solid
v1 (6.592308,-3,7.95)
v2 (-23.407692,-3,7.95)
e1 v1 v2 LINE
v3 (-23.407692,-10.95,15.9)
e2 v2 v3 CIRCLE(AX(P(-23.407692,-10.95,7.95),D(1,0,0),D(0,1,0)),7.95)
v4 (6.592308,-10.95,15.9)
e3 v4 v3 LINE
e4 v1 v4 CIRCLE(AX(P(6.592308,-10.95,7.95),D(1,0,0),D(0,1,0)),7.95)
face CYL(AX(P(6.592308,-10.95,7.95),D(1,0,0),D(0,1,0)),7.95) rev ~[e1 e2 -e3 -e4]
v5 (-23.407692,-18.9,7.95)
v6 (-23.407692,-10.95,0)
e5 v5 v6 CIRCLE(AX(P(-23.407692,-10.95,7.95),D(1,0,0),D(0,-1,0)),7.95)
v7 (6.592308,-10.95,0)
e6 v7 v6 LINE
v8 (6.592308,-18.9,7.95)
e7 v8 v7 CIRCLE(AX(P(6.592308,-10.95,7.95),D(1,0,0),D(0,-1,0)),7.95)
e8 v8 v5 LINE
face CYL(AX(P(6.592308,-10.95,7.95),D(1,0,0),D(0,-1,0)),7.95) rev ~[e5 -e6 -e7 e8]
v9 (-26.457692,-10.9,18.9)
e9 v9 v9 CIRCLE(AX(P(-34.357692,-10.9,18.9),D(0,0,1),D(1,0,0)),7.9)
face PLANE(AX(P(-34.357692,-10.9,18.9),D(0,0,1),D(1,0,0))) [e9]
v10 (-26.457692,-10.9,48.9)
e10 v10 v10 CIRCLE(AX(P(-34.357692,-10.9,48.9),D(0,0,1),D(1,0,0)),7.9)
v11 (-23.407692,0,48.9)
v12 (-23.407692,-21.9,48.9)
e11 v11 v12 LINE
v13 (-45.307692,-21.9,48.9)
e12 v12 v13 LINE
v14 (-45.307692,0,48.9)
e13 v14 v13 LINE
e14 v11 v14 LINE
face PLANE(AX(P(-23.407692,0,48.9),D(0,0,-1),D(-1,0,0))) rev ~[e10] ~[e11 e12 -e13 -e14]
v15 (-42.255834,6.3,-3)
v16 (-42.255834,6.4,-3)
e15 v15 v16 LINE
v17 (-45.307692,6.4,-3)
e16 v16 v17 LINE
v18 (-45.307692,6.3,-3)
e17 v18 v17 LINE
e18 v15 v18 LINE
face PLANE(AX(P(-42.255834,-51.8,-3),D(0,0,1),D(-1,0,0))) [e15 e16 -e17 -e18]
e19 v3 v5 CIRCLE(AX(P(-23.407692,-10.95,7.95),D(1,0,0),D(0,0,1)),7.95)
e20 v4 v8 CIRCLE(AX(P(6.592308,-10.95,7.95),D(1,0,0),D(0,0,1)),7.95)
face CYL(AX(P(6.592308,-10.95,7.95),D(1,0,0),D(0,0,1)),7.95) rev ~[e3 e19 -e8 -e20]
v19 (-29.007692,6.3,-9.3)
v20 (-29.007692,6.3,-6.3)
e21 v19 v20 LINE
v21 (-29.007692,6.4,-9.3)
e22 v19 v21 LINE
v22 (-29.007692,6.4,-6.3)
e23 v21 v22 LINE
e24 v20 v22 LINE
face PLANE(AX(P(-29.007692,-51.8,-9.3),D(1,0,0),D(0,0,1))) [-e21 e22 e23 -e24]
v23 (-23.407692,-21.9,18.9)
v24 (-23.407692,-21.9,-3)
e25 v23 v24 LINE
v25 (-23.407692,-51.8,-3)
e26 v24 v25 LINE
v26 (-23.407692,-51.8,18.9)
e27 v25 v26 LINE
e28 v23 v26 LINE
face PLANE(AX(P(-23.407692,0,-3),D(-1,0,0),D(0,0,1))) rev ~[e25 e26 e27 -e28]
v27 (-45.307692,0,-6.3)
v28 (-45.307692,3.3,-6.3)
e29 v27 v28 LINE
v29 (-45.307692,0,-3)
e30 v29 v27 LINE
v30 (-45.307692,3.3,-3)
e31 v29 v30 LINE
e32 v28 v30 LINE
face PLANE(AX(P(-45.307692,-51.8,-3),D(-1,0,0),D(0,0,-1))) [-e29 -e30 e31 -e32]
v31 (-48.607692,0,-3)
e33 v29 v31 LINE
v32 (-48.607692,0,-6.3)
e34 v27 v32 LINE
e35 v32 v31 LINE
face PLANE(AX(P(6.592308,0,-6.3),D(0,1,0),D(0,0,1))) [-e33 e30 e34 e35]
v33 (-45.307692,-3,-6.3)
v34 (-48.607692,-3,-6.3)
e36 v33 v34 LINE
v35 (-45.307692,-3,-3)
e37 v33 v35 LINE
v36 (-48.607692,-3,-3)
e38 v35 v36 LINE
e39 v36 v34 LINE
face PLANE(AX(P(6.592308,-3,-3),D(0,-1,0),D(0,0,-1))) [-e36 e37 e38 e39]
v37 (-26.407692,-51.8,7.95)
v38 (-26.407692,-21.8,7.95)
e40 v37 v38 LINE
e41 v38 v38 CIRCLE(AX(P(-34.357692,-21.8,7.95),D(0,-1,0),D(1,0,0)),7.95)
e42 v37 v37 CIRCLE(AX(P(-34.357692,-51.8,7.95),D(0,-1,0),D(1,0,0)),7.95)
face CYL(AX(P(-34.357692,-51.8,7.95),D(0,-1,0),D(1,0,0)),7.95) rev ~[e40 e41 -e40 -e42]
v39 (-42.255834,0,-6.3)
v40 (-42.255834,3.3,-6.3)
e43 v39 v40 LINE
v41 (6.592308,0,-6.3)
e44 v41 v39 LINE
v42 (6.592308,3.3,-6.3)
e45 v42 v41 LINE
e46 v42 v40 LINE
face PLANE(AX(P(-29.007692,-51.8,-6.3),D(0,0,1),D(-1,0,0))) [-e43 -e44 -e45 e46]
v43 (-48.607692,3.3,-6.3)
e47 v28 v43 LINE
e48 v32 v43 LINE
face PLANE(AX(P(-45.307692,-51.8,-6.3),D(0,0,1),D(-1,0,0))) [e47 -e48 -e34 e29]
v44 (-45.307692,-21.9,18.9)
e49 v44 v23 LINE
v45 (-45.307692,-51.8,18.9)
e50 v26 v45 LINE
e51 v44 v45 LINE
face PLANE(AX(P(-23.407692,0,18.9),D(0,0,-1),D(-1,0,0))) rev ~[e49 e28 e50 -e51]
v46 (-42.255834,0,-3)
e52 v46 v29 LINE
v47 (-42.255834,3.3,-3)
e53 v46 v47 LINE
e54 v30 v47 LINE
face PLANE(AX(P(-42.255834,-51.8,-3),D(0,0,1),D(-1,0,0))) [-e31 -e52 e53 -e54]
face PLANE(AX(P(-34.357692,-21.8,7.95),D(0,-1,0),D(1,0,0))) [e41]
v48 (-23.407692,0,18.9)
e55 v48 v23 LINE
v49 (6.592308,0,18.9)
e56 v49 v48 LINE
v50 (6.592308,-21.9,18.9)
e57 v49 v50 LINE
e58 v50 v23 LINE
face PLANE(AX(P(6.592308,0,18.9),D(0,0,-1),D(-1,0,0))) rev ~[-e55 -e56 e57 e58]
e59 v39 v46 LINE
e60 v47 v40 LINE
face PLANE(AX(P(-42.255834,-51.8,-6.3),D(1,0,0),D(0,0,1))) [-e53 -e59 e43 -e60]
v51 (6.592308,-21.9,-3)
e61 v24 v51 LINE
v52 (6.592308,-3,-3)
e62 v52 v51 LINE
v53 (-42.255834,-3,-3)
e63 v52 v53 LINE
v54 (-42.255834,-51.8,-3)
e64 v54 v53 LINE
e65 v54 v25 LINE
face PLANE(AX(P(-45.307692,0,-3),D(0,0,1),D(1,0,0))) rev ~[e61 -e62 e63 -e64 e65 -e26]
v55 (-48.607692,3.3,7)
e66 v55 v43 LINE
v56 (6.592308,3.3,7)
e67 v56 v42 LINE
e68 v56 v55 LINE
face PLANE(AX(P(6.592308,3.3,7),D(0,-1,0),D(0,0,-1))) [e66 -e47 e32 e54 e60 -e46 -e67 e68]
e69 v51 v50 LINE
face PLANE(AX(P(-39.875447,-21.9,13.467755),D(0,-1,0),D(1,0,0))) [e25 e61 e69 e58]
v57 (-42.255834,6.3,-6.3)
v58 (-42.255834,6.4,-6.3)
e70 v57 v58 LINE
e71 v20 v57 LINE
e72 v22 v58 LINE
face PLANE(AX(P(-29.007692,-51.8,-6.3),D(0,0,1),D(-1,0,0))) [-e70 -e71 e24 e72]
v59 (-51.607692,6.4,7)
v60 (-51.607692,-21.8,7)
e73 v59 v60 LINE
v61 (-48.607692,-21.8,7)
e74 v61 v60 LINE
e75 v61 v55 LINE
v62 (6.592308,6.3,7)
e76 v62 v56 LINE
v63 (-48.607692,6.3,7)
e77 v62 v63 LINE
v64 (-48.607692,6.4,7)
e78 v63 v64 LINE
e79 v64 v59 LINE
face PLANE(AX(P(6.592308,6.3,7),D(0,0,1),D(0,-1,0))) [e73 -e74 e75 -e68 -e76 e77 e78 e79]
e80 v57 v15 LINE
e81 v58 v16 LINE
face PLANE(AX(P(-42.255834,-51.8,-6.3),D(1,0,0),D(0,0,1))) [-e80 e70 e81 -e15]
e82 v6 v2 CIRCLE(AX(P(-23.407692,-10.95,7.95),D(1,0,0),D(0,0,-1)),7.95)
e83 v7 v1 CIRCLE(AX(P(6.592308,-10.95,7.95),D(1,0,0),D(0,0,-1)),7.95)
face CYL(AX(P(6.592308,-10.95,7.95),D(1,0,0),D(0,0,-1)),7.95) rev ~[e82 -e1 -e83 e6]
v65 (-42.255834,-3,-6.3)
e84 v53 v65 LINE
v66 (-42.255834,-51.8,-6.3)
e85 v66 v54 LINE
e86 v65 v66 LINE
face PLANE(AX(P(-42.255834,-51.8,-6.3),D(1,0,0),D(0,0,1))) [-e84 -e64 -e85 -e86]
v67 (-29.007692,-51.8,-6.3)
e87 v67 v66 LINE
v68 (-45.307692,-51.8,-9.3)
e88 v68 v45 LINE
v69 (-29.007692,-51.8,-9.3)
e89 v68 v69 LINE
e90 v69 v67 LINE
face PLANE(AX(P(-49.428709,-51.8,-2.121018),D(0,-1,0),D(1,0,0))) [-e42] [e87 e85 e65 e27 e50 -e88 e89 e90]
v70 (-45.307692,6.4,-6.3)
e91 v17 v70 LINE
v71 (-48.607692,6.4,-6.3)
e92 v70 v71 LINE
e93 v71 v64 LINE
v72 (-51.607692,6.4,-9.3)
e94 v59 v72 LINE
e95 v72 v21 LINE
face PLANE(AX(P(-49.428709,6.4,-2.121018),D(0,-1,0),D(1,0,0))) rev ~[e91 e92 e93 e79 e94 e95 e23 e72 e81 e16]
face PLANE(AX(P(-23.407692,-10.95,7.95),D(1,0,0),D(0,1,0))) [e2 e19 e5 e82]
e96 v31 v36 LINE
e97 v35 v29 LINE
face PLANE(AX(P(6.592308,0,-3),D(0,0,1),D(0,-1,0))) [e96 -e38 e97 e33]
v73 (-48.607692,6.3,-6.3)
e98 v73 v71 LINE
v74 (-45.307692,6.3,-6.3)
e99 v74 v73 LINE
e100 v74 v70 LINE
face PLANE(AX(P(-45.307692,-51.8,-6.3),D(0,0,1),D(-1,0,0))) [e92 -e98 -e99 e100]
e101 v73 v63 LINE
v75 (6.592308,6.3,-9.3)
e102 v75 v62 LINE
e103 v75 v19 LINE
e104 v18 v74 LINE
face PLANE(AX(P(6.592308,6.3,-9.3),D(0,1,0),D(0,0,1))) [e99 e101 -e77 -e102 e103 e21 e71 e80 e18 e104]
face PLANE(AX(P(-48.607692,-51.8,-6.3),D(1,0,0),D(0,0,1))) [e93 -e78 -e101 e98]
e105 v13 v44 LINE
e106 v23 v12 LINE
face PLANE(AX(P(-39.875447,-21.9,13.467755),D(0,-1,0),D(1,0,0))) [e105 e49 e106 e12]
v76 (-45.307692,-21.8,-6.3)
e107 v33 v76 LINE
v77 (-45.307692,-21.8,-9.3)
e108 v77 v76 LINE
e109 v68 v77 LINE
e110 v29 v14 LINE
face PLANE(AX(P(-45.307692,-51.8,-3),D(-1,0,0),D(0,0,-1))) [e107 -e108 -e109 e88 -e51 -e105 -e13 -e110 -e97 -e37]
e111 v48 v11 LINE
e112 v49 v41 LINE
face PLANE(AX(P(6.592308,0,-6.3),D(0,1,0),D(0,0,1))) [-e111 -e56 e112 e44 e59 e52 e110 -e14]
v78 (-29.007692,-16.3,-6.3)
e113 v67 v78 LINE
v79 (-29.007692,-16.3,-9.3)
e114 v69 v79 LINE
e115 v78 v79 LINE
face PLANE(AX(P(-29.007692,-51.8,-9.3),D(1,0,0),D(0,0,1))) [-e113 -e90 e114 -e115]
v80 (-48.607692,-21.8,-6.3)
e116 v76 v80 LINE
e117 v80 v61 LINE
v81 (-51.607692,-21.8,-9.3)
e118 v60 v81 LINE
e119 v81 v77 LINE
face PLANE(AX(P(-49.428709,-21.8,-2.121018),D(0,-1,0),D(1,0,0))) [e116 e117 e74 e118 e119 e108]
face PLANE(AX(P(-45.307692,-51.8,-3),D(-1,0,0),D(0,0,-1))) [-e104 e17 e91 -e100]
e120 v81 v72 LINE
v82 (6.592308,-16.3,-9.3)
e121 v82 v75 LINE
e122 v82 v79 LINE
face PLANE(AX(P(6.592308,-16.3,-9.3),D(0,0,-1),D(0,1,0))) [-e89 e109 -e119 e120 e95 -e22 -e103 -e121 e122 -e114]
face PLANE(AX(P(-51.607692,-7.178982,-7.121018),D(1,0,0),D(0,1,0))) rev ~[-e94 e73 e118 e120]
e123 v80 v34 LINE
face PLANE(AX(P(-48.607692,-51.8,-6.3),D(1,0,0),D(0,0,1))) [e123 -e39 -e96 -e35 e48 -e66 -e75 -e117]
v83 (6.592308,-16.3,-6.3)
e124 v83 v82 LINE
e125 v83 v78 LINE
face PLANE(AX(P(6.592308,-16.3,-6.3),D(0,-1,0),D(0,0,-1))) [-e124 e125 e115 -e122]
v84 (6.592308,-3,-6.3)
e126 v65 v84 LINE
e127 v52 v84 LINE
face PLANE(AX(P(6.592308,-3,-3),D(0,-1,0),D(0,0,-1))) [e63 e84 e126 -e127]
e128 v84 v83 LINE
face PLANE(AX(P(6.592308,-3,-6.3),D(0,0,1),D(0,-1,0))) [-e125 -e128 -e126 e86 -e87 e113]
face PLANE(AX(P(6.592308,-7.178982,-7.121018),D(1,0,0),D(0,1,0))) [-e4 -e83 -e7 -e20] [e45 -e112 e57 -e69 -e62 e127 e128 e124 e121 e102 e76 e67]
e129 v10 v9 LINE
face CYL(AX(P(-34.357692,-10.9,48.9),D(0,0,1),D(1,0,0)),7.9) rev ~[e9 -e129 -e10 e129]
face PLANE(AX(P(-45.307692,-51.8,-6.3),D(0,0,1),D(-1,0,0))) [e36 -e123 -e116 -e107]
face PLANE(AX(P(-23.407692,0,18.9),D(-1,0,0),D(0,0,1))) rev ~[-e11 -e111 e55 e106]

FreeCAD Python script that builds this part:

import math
import FreeCAD as App
import Part
import Sketcher
from FreeCAD import Vector


def add_polygon(sketch, points):
    """Adds a closed chain of lines whose ends are joined by coincident constraints."""
    first, n = sketch.GeometryCount, len(points)
    for a, b in zip(points, points[1:] + points[:1]):
        sketch.addGeometry(Part.LineSegment(App.Vector(*a, 0), App.Vector(*b, 0)), False)
    for i in range(n):
        sketch.addConstraint(Sketcher.Constraint("Coincident", first + i, 2, first + (i + 1) % n, 1))

doc = App.newDocument("Part")
body = doc.addObject("PartDesign::Body", "Body")

# Sketch on XZ plane
sketch1 = body.newObject("Sketcher::SketchObject", "Sketch")
sketch1.AttachmentSupport = (doc.getObject("XZ_Plane"), [""])
sketch1.MapMode = "FlatFace"
add_polygon(sketch1, [(7, 19), (-23, 19), (-23, 49), (-45, 49), (-45, -3), (7, -3)])  # lines 0-5
sketch1.addConstraint(Sketcher.Constraint("Horizontal", 0))
sketch1.addConstraint(Sketcher.Constraint("Vertical", 1))
sketch1.addConstraint(Sketcher.Constraint("Horizontal", 2))
sketch1.addConstraint(Sketcher.Constraint("Vertical", 3))
sketch1.addConstraint(Sketcher.Constraint("Horizontal", 4))
sketch1.addConstraint(Sketcher.Constraint("Vertical", 5))
sketch1.addConstraint(Sketcher.Constraint("Equal", 0, 1))
sketch1.addConstraint(Sketcher.Constraint("Equal", 4, 3))
sketch1.addConstraint(Sketcher.Constraint("DistanceX", 0, 2, 0, 1, 30.0))
sketch1.addConstraint(Sketcher.Constraint("DistanceX", 2, 2, 2, 1, 21.9))
sketch1.addConstraint(Sketcher.Constraint("DistanceY", 3, 2, -1, 1, 3.0))
sketch1.addConstraint(Sketcher.Constraint("DistanceX", 0, 2, -1, 1, 23.407692))
pad1 = body.newObject("PartDesign::Pad", "Pad")
pad1.Profile = sketch1
pad1.Length = 21.9

# Sketch on XZ plane
sketch2 = body.newObject("Sketcher::SketchObject", "Sketch001")
sketch2.AttachmentSupport = (doc.getObject("XZ_Plane"), [""])
sketch2.MapMode = "FlatFace"
add_polygon(sketch2, [(-23, -3), (-23, 19), (-45, 19), (-45, -3)])  # lines 0-3
sketch2.addConstraint(Sketcher.Constraint("Vertical", 0))
sketch2.addConstraint(Sketcher.Constraint("Horizontal", 1))
sketch2.addConstraint(Sketcher.Constraint("Vertical", 2))
sketch2.addConstraint(Sketcher.Constraint("Horizontal", 3))
sketch2.addConstraint(Sketcher.Constraint("Equal", 3, 0))
sketch2.addConstraint(Sketcher.Constraint("DistanceX", 1, 2, 1, 1, 21.9))
sketch2.addConstraint(Sketcher.Constraint("DistanceY", 2, 2, -1, 1, 3.0))
sketch2.addConstraint(Sketcher.Constraint("DistanceX", 0, 2, -1, 1, 23.407692))
pad2 = body.newObject("PartDesign::Pad", "Pad001")
pad2.Profile = sketch2
pad2.Length = 51.8

# Sketch on XZ plane
sketch3 = body.newObject("Sketcher::SketchObject", "Sketch002")
sketch3.AttachmentSupport = (doc.getObject("XZ_Plane"), [""])
sketch3.MapMode = "FlatFace"
sketch3.AttachmentOffset = App.Placement(Vector(0, 0, 51.8), App.Rotation())
sketch3.addGeometry(Part.Circle(Vector(-34, 8, 0), Vector(0, 0, 1), 8), False)
sketch3.addConstraint(Sketcher.Constraint("Diameter", 0, 15.9))
sketch3.addConstraint(Sketcher.Constraint("DistanceY", -1, 1, 0, 3, 7.95))
sketch3.addConstraint(Sketcher.Constraint("DistanceX", 0, 3, -1, 1, 34.357692))
pocket1 = body.newObject("PartDesign::Pocket", "Pocket")
pocket1.Profile = sketch3
pocket1.Length = 30

# Sketch on YZ plane
sketch4 = body.newObject("Sketcher::SketchObject", "Sketch003")
sketch4.AttachmentSupport = (doc.getObject("YZ_Plane"), [""])
sketch4.MapMode = "FlatFace"
sketch4.AttachmentOffset = App.Placement(Vector(0, 0, 6.592308), App.Rotation())
sketch4.addGeometry(Part.ArcOfCircle(Part.Circle(Vector(-11, 8, 0), Vector(0, 0, 1), 8), math.radians(0), math.radians(90)), False)
sketch4.addGeometry(Part.ArcOfCircle(Part.Circle(Vector(-11, 8, 0), Vector(0, 0, 1), 8), math.radians(90), math.radians(180)), False)
sketch4.addGeometry(Part.ArcOfCircle(Part.Circle(Vector(-11, 8, 0), Vector(0, 0, 1), 8), math.radians(180), math.radians(270)), False)
sketch4.addGeometry(Part.ArcOfCircle(Part.Circle(Vector(-11, 8, 0), Vector(0, 0, 1), 8), math.radians(-90), math.radians(0)), False)
sketch4.addConstraint(Sketcher.Constraint("Tangent", 0, 2, 1, 1))
sketch4.addConstraint(Sketcher.Constraint("Tangent", 1, 2, 2, 1))
sketch4.addConstraint(Sketcher.Constraint("Tangent", 2, 2, 3, 1))
sketch4.addConstraint(Sketcher.Constraint("Tangent", 3, 2, 0, 1))
sketch4.addConstraint(Sketcher.Constraint("Equal", 0, 1))
sketch4.addConstraint(Sketcher.Constraint("PointOnObject", 2, 2, -1))
sketch4.addConstraint(Sketcher.Constraint("Horizontal", 3, 3, 1, 2))
sketch4.addConstraint(Sketcher.Constraint("Horizontal", 1, 2, 3, 2))
sketch4.addConstraint(Sketcher.Constraint("Vertical", 3, 3, 0, 2))
sketch4.addConstraint(Sketcher.Constraint("Vertical", 0, 2, 2, 2))
sketch4.addConstraint(Sketcher.Constraint("Radius", 0, 7.95))
sketch4.addConstraint(Sketcher.Constraint("DistanceX", 3, 2, -1, 1, 3.0))
pocket2 = body.newObject("PartDesign::Pocket", "Pocket001")
pocket2.Profile = sketch4
pocket2.Length = 30

# Sketch on XY plane
sketch5 = body.newObject("Sketcher::SketchObject", "Sketch004")
sketch5.AttachmentSupport = (doc.getObject("XY_Plane"), [""])
sketch5.MapMode = "FlatFace"
sketch5.AttachmentOffset = App.Placement(Vector(0, 0, 48.9), App.Rotation())
sketch5.addGeometry(Part.Circle(Vector(-34, -11, 0), Vector(0, 0, 1), 8), False)
sketch5.addConstraint(Sketcher.Constraint("Diameter", 0, 15.8))
sketch5.addConstraint(Sketcher.Constraint("DistanceY", 0, 3, -1, 1, 10.9))
sketch5.addConstraint(Sketcher.Constraint("DistanceX", 0, 3, -1, 1, 34.357692))
pocket3 = body.newObject("PartDesign::Pocket", "Pocket002")
pocket3.Profile = sketch5
pocket3.Length = 30

# Sketch on XZ plane
sketch6 = body.newObject("Sketcher::SketchObject", "Sketch005")
sketch6.AttachmentSupport = (doc.getObject("XZ_Plane"), [""])
sketch6.MapMode = "FlatFace"
sketch6.AttachmentOffset = App.Placement(Vector(0, 0, 51.8), App.Rotation())
add_polygon(sketch6, [(-45.3, -6.3), (-48.6, -6.3), (-48.6, 7), (-51.6, 7), (-51.6, -9.3), (-29, -9.3), (-29, -6.3), (-42.3, -6.3), (-42.3, -3), (-45.3, -3)])  # lines 0-9
sketch6.addConstraint(Sketcher.Constraint("Horizontal", 0))
sketch6.addConstraint(Sketcher.Constraint("Vertical", 1))
sketch6.addConstraint(Sketcher.Constraint("Horizontal", 2))
sketch6.addConstraint(Sketcher.Constraint("Vertical", 3))
sketch6.addConstraint(Sketcher.Constraint("Horizontal", 4))
sketch6.addConstraint(Sketcher.Constraint("Vertical", 5))
sketch6.addConstraint(Sketcher.Constraint("Horizontal", 6))
sketch6.addConstraint(Sketcher.Constraint("Vertical", 7))
sketch6.addConstraint(Sketcher.Constraint("Horizontal", 8))
sketch6.addConstraint(Sketcher.Constraint("Vertical", 9))
sketch6.addConstraint(Sketcher.Constraint("Horizontal", 0, 2, 5, 2))
sketch6.addConstraint(Sketcher.Constraint("Equal", 2, 5))
sketch6.addConstraint(Sketcher.Constraint("Equal", 0, 7))
sketch6.addConstraint(Sketcher.Constraint("DistanceX", 2, 2, 2, 1, 3.0))
sketch6.addConstraint(Sketcher.Constraint("DistanceX", 0, 2, 0, 1, 3.3))
sketch6.addConstraint(Sketcher.Constraint("DistanceX", 4, 1, 4, 2, 22.6))
sketch6.addConstraint(Sketcher.Constraint("DistanceY", 1, 1, 1, 2, 13.3))
sketch6.addConstraint(Sketcher.Constraint("DistanceY", -1, 1, 1, 2, 7.0))
sketch6.addConstraint(Sketcher.Constraint("DistanceX", 6, 2, 6, 1, 13.248142))
sketch6.addConstraint(Sketcher.Constraint("DistanceX", 0, 2, -1, 1, 48.607692))
pad3 = body.newObject("PartDesign::Pad", "Pad002")
pad3.Profile = sketch6
pad3.Length = 58.2
pad3.Reversed = True

# Sketch on YZ plane
sketch7 = body.newObject("Sketcher::SketchObject", "Sketch006")
sketch7.AttachmentSupport = (doc.getObject("YZ_Plane"), [""])
sketch7.MapMode = "FlatFace"
sketch7.AttachmentOffset = App.Placement(Vector(0, 0, 6.592308), App.Rotation())
add_polygon(sketch7, [(0, -3), (-3, -3), (-3, -6.3), (-16.3, -6.3), (-16.3, -9.3), (6.3, -9.3), (6.3, 7), (3.3, 7), (3.3, -6.3), (0, -6.3)])  # lines 0-9
sketch7.addConstraint(Sketcher.Constraint("Horizontal", 0))
sketch7.addConstraint(Sketcher.Constraint("Vertical", 1))
sketch7.addConstraint(Sketcher.Constraint("Horizontal", 2))
sketch7.addConstraint(Sketcher.Constraint("Vertical", 3))
sketch7.addConstraint(Sketcher.Constraint("Horizontal", 4))
sketch7.addConstraint(Sketcher.Constraint("Vertical", 5))
sketch7.addConstraint(Sketcher.Constraint("Horizontal", 6))
sketch7.addConstraint(Sketcher.Constraint("Vertical", 7))
sketch7.addConstraint(Sketcher.Constraint("Horizontal", 8))
sketch7.addConstraint(Sketcher.Constraint("Vertical", 9))
sketch7.addConstraint(Sketcher.Constraint("PointOnObject", 8, 2, -2))
sketch7.addConstraint(Sketcher.Constraint("Horizontal", 2, 2, 7, 2))
sketch7.addConstraint(Sketcher.Constraint("Equal", 0, 6))
sketch7.addConstraint(Sketcher.Constraint("Equal", 8, 1))
sketch7.addConstraint(Sketcher.Constraint("Equal", 6, 3))
sketch7.addConstraint(Sketcher.Constraint("Equal", 2, 7))
sketch7.addConstraint(Sketcher.Constraint("DistanceX", 0, 2, 0, 1, 3.0))
sketch7.addConstraint(Sketcher.Constraint("DistanceX", 2, 2, 2, 1, 13.3))
sketch7.addConstraint(Sketcher.Constraint("DistanceX", 4, 1, 4, 2, 22.6))
sketch7.addConstraint(Sketcher.Constraint("DistanceY", 0, 2, -1, 1, 3.0))
pad4 = body.newObject("PartDesign::Pad", "Pad003")
pad4.Profile = sketch7
pad4.Type = "UpToLast"
pad4.Reversed = True

# Sketch on XZ plane
sketch8 = body.newObject("Sketcher::SketchObject", "Sketch007")
sketch8.AttachmentSupport = (doc.getObject("XZ_Plane"), [""])
sketch8.MapMode = "FlatFace"
sketch8.AttachmentOffset = App.Placement(Vector(0, 0, 51.8), App.Rotation())
add_polygon(sketch8, [(-45.3, -9.3), (-45.3, -6.3), (-48.6, -6.3), (-48.6, 7), (-51.6, 7), (-51.6, -9.3)])  # lines 0-5
sketch8.addConstraint(Sketcher.Constraint("Vertical", 0))
sketch8.addConstraint(Sketcher.Constraint("Horizontal", 1))
sketch8.addConstraint(Sketcher.Constraint("Vertical", 2))
sketch8.addConstraint(Sketcher.Constraint("Horizontal", 3))
sketch8.addConstraint(Sketcher.Constraint("Vertical", 4))
sketch8.addConstraint(Sketcher.Constraint("Horizontal", 5))
sketch8.addConstraint(Sketcher.Constraint("Equal", 3, 0))
sketch8.addConstraint(Sketcher.Constraint("DistanceX", 3, 2, 3, 1, 3.0))
sketch8.addConstraint(Sketcher.Constraint("DistanceX", 1, 2, 1, 1, 3.3))
sketch8.addConstraint(Sketcher.Constraint("DistanceY", 2, 1, 2, 2, 13.3))
sketch8.addConstraint(Sketcher.Constraint("DistanceY", -1, 1, 2, 2, 7.0))
sketch8.addConstraint(Sketcher.Constraint("DistanceX", 0, 2, -1, 1, 45.307692))
pocket4 = body.newObject("PartDesign::Pocket", "Pocket003")
pocket4.Profile = sketch8
pocket4.Length = 30

doc.recompute()
